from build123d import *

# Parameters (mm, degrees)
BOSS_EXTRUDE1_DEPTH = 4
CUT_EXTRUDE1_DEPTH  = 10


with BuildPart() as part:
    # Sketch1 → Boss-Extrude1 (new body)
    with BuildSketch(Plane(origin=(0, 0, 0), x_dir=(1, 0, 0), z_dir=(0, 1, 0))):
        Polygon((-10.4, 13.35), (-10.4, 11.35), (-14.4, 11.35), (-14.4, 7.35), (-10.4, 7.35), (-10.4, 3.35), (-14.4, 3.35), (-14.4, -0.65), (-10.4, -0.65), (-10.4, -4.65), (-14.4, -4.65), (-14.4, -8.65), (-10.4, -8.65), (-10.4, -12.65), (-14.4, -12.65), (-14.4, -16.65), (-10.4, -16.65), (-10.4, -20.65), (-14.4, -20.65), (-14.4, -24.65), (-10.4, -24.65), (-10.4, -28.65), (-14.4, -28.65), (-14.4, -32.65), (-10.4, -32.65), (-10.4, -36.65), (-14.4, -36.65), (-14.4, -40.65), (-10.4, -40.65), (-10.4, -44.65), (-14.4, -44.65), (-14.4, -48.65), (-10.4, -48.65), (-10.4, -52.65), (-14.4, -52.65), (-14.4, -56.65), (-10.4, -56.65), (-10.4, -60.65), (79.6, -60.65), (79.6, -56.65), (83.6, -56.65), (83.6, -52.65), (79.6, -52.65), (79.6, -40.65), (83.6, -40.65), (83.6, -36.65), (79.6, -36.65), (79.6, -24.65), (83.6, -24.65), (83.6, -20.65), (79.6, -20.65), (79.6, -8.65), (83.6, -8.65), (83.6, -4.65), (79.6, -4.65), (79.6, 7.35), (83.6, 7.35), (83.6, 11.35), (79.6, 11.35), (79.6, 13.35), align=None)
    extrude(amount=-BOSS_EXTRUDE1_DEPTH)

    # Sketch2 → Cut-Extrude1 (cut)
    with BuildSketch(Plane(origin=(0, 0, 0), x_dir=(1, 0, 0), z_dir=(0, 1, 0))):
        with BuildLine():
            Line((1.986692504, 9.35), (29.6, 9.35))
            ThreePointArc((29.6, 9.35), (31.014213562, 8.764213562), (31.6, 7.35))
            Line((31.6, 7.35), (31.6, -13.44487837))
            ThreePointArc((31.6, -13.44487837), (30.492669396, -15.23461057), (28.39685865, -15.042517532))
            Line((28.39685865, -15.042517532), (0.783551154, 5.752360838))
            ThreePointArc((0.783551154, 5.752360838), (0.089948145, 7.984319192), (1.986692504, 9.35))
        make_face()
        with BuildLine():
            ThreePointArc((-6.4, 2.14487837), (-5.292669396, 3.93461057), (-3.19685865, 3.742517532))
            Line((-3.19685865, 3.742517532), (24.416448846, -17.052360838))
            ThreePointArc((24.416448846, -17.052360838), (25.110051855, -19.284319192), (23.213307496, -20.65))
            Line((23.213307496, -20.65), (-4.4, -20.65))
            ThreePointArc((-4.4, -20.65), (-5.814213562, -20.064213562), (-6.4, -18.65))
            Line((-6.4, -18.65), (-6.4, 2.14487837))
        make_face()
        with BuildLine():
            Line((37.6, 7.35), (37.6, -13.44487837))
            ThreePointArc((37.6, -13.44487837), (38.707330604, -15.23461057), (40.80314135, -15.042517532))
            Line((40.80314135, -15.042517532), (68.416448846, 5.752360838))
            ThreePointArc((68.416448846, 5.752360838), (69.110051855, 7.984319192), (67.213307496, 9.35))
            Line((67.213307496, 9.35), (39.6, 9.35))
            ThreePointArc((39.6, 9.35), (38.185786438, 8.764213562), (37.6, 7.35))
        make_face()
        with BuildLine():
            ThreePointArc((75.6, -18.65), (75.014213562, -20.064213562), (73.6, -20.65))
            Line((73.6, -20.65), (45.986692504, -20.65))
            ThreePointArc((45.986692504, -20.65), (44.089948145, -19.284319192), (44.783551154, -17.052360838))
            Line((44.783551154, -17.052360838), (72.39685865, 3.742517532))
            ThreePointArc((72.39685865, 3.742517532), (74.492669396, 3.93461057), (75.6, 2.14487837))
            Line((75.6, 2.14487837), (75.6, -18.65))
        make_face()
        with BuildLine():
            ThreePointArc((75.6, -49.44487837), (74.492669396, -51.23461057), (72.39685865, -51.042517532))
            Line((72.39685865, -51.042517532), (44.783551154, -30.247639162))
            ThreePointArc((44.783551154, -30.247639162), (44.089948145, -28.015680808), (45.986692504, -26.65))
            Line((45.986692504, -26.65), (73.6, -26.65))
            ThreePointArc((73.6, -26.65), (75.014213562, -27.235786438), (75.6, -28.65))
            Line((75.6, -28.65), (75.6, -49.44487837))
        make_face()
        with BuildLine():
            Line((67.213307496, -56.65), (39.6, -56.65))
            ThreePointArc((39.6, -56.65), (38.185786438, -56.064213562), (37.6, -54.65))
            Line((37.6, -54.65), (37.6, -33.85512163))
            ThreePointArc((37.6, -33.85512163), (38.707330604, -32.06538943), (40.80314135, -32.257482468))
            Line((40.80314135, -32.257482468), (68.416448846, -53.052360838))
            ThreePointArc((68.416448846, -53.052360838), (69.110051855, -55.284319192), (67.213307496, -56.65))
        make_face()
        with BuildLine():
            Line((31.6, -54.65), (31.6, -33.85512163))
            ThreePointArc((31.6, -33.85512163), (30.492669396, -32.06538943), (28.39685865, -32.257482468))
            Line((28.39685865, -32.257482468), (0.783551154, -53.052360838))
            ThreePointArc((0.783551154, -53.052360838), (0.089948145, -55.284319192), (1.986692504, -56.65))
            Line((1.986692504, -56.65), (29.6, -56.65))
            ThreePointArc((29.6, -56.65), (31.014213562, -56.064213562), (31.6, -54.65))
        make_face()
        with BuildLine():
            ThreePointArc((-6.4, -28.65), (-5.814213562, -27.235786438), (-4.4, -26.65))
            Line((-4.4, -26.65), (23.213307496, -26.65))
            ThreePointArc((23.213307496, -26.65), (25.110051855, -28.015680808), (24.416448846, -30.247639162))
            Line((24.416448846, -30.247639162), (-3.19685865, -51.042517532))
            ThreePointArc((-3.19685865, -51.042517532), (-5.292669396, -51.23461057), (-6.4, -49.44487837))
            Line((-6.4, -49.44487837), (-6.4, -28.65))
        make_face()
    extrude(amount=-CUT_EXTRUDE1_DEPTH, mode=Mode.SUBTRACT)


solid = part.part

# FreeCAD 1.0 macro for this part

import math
import FreeCAD as App
import Part
import Sketcher

V = App.Vector
Q = App.Units.Quantity

doc = App.newDocument("Part")
body = doc.addObject("PartDesign::Body", "Body")

sketch1 = body.newObject("Sketcher::SketchObject", "Sketch")
sketch1.AttachmentSupport = (doc.getObject("XZ_Plane"), [""])
sketch1.MapMode = "FlatFace"
sketch1.addGeometry(Part.LineSegment(V(-10.4, -13.3, 0), V(-10.4, -11.3, 0)), False)
sketch1.addGeometry(Part.LineSegment(V(-10.4, -11.3, 0), V(-14.4, -11.3, 0)), False)
sketch1.addGeometry(Part.LineSegment(V(-14.4, -11.3, 0), V(-14.4, -7.3, 0)), False)
sketch1.addGeometry(Part.LineSegment(V(-14.4, -7.3, 0), V(-10.4, -7.3, 0)), False)
sketch1.addGeometry(Part.LineSegment(V(-10.4, -7.3, 0), V(-10.4, -3.4, 0)), False)
sketch1.addGeometry(Part.LineSegment(V(-10.4, -3.4, 0), V(-14.4, -3.4, 0)), False)
sketch1.addGeometry(Part.LineSegment(V(-14.4, -3.4, 0), V(-14.4, 0.7, 0)), False)
sketch1.addGeometry(Part.LineSegment(V(-14.4, 0.7, 0), V(-10.4, 0.7, 0)), False)
sketch1.addGeometry(Part.LineSegment(V(-10.4, 0.7, 0), V(-10.4, 4.7, 0)), False)
sketch1.addGeometry(Part.LineSegment(V(-10.4, 4.7, 0), V(-14.4, 4.7, 0)), False)
sketch1.addGeometry(Part.LineSegment(V(-14.4, 4.7, 0), V(-14.4, 8.7, 0)), False)
sketch1.addGeometry(Part.LineSegment(V(-14.4, 8.7, 0), V(-10.4, 8.7, 0)), False)
sketch1.addGeometry(Part.LineSegment(V(-10.4, 8.7, 0), V(-10.4, 12.7, 0)), False)
sketch1.addGeometry(Part.LineSegment(V(-10.4, 12.7, 0), V(-14.4, 12.7, 0)), False)
sketch1.addGeometry(Part.LineSegment(V(-14.4, 12.7, 0), V(-14.4, 16.6, 0)), False)
sketch1.addGeometry(Part.LineSegment(V(-14.4, 16.6, 0), V(-10.4, 16.6, 0)), False)
sketch1.addGeometry(Part.LineSegment(V(-10.4, 16.6, 0), V(-10.4, 20.6, 0)), False)
sketch1.addGeometry(Part.LineSegment(V(-10.4, 20.6, 0), V(-14.4, 20.6, 0)), False)
sketch1.addGeometry(Part.LineSegment(V(-14.4, 20.6, 0), V(-14.4, 24.6, 0)), False)
sketch1.addGeometry(Part.LineSegment(V(-14.4, 24.6, 0), V(-10.4, 24.6, 0)), False)
sketch1.addGeometry(Part.LineSegment(V(-10.4, 24.6, 0), V(-10.4, 28.6, 0)), False)
sketch1.addGeometry(Part.LineSegment(V(-10.4, 28.6, 0), V(-14.4, 28.6, 0)), False)
sketch1.addGeometry(Part.LineSegment(V(-14.4, 28.6, 0), V(-14.4, 32.6, 0)), False)
sketch1.addGeometry(Part.LineSegment(V(-14.4, 32.6, 0), V(-10.4, 32.6, 0)), False)
sketch1.addGeometry(Part.LineSegment(V(-10.4, 32.6, 0), V(-10.4, 36.6, 0)), False)
sketch1.addGeometry(Part.LineSegment(V(-10.4, 36.6, 0), V(-14.4, 36.6, 0)), False)
sketch1.addGeometry(Part.LineSegment(V(-14.4, 36.6, 0), V(-14.4, 40.6, 0)), False)
sketch1.addGeometry(Part.LineSegment(V(-14.4, 40.6, 0), V(-10.4, 40.6, 0)), False)
sketch1.addGeometry(Part.LineSegment(V(-10.4, 40.6, 0), V(-10.4, 44.6, 0)), False)
sketch1.addGeometry(Part.LineSegment(V(-10.4, 44.6, 0), V(-14.4, 44.6, 0)), False)
sketch1.addGeometry(Part.LineSegment(V(-14.4, 44.6, 0), V(-14.4, 48.6, 0)), False)
sketch1.addGeometry(Part.LineSegment(V(-14.4, 48.6, 0), V(-10.4, 48.6, 0)), False)
sketch1.addGeometry(Part.LineSegment(V(-10.4, 48.6, 0), V(-10.4, 52.6, 0)), False)
sketch1.addGeometry(Part.LineSegment(V(-10.4, 52.6, 0), V(-14.4, 52.6, 0)), False)
sketch1.addGeometry(Part.LineSegment(V(-14.4, 52.6, 0), V(-14.4, 56.6, 0)), False)
sketch1.addGeometry(Part.LineSegment(V(-14.4, 56.6, 0), V(-10.4, 56.6, 0)), False)
sketch1.addGeometry(Part.LineSegment(V(-10.4, 56.6, 0), V(-10.4, 60.6, 0)), False)
sketch1.addGeometry(Part.LineSegment(V(-10.4, 60.6, 0), V(79.6, 60.6, 0)), False)
sketch1.addGeometry(Part.LineSegment(V(79.6, 60.6, 0), V(79.6, 56.6, 0)), False)
sketch1.addGeometry(Part.LineSegment(V(79.6, 56.6, 0), V(83.6, 56.6, 0)), False)
sketch1.addGeometry(Part.LineSegment(V(83.6, 56.6, 0), V(83.6, 52.6, 0)), False)
sketch1.addGeometry(Part.LineSegment(V(83.6, 52.6, 0), V(79.6, 52.6, 0)), False)
sketch1.addGeometry(Part.LineSegment(V(79.6, 52.6, 0), V(79.6, 40.6, 0)), False)
sketch1.addGeometry(Part.LineSegment(V(79.6, 40.6, 0), V(83.6, 40.6, 0)), False)
sketch1.addGeometry(Part.LineSegment(V(83.6, 40.6, 0), V(83.6, 36.6, 0)), False)
sketch1.addGeometry(Part.LineSegment(V(83.6, 36.6, 0), V(79.6, 36.6, 0)), False)
sketch1.addGeometry(Part.LineSegment(V(79.6, 36.6, 0), V(79.6, 24.6, 0)), False)
sketch1.addGeometry(Part.LineSegment(V(79.6, 24.6, 0), V(83.6, 24.6, 0)), False)
sketch1.addGeometry(Part.LineSegment(V(83.6, 24.6, 0), V(83.6, 20.6, 0)), False)
sketch1.addGeometry(Part.LineSegment(V(83.6, 20.6, 0), V(79.6, 20.6, 0)), False)
sketch1.addGeometry(Part.LineSegment(V(79.6, 20.6, 0), V(79.6, 8.7, 0)), False)
sketch1.addGeometry(Part.LineSegment(V(79.6, 8.7, 0), V(83.6, 8.7, 0)), False)
sketch1.addGeometry(Part.LineSegment(V(83.6, 8.7, 0), V(83.6, 4.7, 0)), False)
sketch1.addGeometry(Part.LineSegment(V(83.6, 4.7, 0), V(79.6, 4.7, 0)), False)
sketch1.addGeometry(Part.LineSegment(V(79.6, 4.7, 0), V(79.6, -7.3, 0)), False)
sketch1.addGeometry(Part.LineSegment(V(79.6, -7.3, 0), V(83.6, -7.3, 0)), False)
sketch1.addGeometry(Part.LineSegment(V(83.6, -7.3, 0), V(83.6, -11.3, 0)), False)
sketch1.addGeometry(Part.LineSegment(V(83.6, -11.3, 0), V(79.6, -11.3, 0)), False)
sketch1.addGeometry(Part.LineSegment(V(79.6, -11.3, 0), V(79.6, -13.3, 0)), False)
sketch1.addGeometry(Part.LineSegment(V(79.6, -13.3, 0), V(-10.4, -13.3, 0)), False)
sketch1.addConstraint(Sketcher.Constraint("Coincident", 0, 2, 1, 1))
sketch1.addConstraint(Sketcher.Constraint("Coincident", 1, 2, 2, 1))
sketch1.addConstraint(Sketcher.Constraint("Coincident", 2, 2, 3, 1))
sketch1.addConstraint(Sketcher.Constraint("Coincident", 3, 2, 4, 1))
sketch1.addConstraint(Sketcher.Constraint("Coincident", 4, 2, 5, 1))
sketch1.addConstraint(Sketcher.Constraint("Coincident", 5, 2, 6, 1))
sketch1.addConstraint(Sketcher.Constraint("Coincident", 6, 2, 7, 1))
sketch1.addConstraint(Sketcher.Constraint("Coincident", 7, 2, 8, 1))
sketch1.addConstraint(Sketcher.Constraint("Coincident", 8, 2, 9, 1))
sketch1.addConstraint(Sketcher.Constraint("Coincident", 9, 2, 10, 1))
sketch1.addConstraint(Sketcher.Constraint("Coincident", 10, 2, 11, 1))
sketch1.addConstraint(Sketcher.Constraint("Coincident", 11, 2, 12, 1))
sketch1.addConstraint(Sketcher.Constraint("Coincident", 12, 2, 13, 1))
sketch1.addConstraint(Sketcher.Constraint("Coincident", 13, 2, 14, 1))
sketch1.addConstraint(Sketcher.Constraint("Coincident", 14, 2, 15, 1))
sketch1.addConstraint(Sketcher.Constraint("Coincident", 15, 2, 16, 1))
sketch1.addConstraint(Sketcher.Constraint("Coincident", 16, 2, 17, 1))
sketch1.addConstraint(Sketcher.Constraint("Coincident", 17, 2, 18, 1))
sketch1.addConstraint(Sketcher.Constraint("Coincident", 18, 2, 19, 1))
sketch1.addConstraint(Sketcher.Constraint("Coincident", 19, 2, 20, 1))
sketch1.addConstraint(Sketcher.Constraint("Coincident", 20, 2, 21, 1))
sketch1.addConstraint(Sketcher.Constraint("Coincident", 21, 2, 22, 1))
sketch1.addConstraint(Sketcher.Constraint("Coincident", 22, 2, 23, 1))
sketch1.addConstraint(Sketcher.Constraint("Coincident", 23, 2, 24, 1))
sketch1.addConstraint(Sketcher.Constraint("Coincident", 24, 2, 25, 1))
sketch1.addConstraint(Sketcher.Constraint("Coincident", 25, 2, 26, 1))
sketch1.addConstraint(Sketcher.Constraint("Coincident", 26, 2, 27, 1))
sketch1.addConstraint(Sketcher.Constraint("Coincident", 27, 2, 28, 1))
sketch1.addConstraint(Sketcher.Constraint("Coincident", 28, 2, 29, 1))
sketch1.addConstraint(Sketcher.Constraint("Coincident", 29, 2, 30, 1))
sketch1.addConstraint(Sketcher.Constraint("Coincident", 30, 2, 31, 1))
sketch1.addConstraint(Sketcher.Constraint("Coincident", 31, 2, 32, 1))
sketch1.addConstraint(Sketcher.Constraint("Coincident", 32, 2, 33, 1))
sketch1.addConstraint(Sketcher.Constraint("Coincident", 33, 2, 34, 1))
sketch1.addConstraint(Sketcher.Constraint("Coincident", 34, 2, 35, 1))
sketch1.addConstraint(Sketcher.Constraint("Coincident", 35, 2, 36, 1))
sketch1.addConstraint(Sketcher.Constraint("Coincident", 36, 2, 37, 1))
sketch1.addConstraint(Sketcher.Constraint("Coincident", 37, 2, 38, 1))
sketch1.addConstraint(Sketcher.Constraint("Coincident", 38, 2, 39, 1))
sketch1.addConstraint(Sketcher.Constraint("Coincident", 39, 2, 40, 1))
sketch1.addConstraint(Sketcher.Constraint("Coincident", 40, 2, 41, 1))
sketch1.addConstraint(Sketcher.Constraint("Coincident", 41, 2, 42, 1))
sketch1.addConstraint(Sketcher.Constraint("Coincident", 42, 2, 43, 1))
sketch1.addConstraint(Sketcher.Constraint("Coincident", 43, 2, 44, 1))
sketch1.addConstraint(Sketcher.Constraint("Coincident", 44, 2, 45, 1))
sketch1.addConstraint(Sketcher.Constraint("Coincident", 45, 2, 46, 1))
sketch1.addConstraint(Sketcher.Constraint("Coincident", 46, 2, 47, 1))
sketch1.addConstraint(Sketcher.Constraint("Coincident", 47, 2, 48, 1))
sketch1.addConstraint(Sketcher.Constraint("Coincident", 48, 2, 49, 1))
sketch1.addConstraint(Sketcher.Constraint("Coincident", 49, 2, 50, 1))
sketch1.addConstraint(Sketcher.Constraint("Coincident", 50, 2, 51, 1))
sketch1.addConstraint(Sketcher.Constraint("Coincident", 51, 2, 52, 1))
sketch1.addConstraint(Sketcher.Constraint("Coincident", 52, 2, 53, 1))
sketch1.addConstraint(Sketcher.Constraint("Coincident", 53, 2, 54, 1))
sketch1.addConstraint(Sketcher.Constraint("Coincident", 54, 2, 55, 1))
sketch1.addConstraint(Sketcher.Constraint("Coincident", 55, 2, 56, 1))
sketch1.addConstraint(Sketcher.Constraint("Coincident", 56, 2, 57, 1))
sketch1.addConstraint(Sketcher.Constraint("Coincident", 57, 2, 58, 1))
sketch1.addConstraint(Sketcher.Constraint("Coincident", 58, 2, 59, 1))
sketch1.addConstraint(Sketcher.Constraint("Coincident", 59, 2, 0, 1))
sketch1.addConstraint(Sketcher.Constraint("Vertical", 0))
sketch1.addConstraint(Sketcher.Constraint("Horizontal", 1))
sketch1.addConstraint(Sketcher.Constraint("Vertical", 2))
sketch1.addConstraint(Sketcher.Constraint("Horizontal", 3))
sketch1.addConstraint(Sketcher.Constraint("Vertical", 4))
sketch1.addConstraint(Sketcher.Constraint("Horizontal", 5))
sketch1.addConstraint(Sketcher.Constraint("Vertical", 6))
sketch1.addConstraint(Sketcher.Constraint("Horizontal", 7))
sketch1.addConstraint(Sketcher.Constraint("Vertical", 8))
sketch1.addConstraint(Sketcher.Constraint("Horizontal", 9))
sketch1.addConstraint(Sketcher.Constraint("Vertical", 10))
sketch1.addConstraint(Sketcher.Constraint("Horizontal", 11))
sketch1.addConstraint(Sketcher.Constraint("Vertical", 12))
sketch1.addConstraint(Sketcher.Constraint("Horizontal", 13))
sketch1.addConstraint(Sketcher.Constraint("Vertical", 14))
sketch1.addConstraint(Sketcher.Constraint("Horizontal", 15))
sketch1.addConstraint(Sketcher.Constraint("Vertical", 16))
sketch1.addConstraint(Sketcher.Constraint("Horizontal", 17))
sketch1.addConstraint(Sketcher.Constraint("Vertical", 18))
sketch1.addConstraint(Sketcher.Constraint("Horizontal", 19))
sketch1.addConstraint(Sketcher.Constraint("Vertical", 20))
sketch1.addConstraint(Sketcher.Constraint("Horizontal", 21))
sketch1.addConstraint(Sketcher.Constraint("Vertical", 22))
sketch1.addConstraint(Sketcher.Constraint("Horizontal", 23))
sketch1.addConstraint(Sketcher.Constraint("Vertical", 24))
sketch1.addConstraint(Sketcher.Constraint("Horizontal", 25))
sketch1.addConstraint(Sketcher.Constraint("Vertical", 26))
sketch1.addConstraint(Sketcher.Constraint("Horizontal", 27))
sketch1.addConstraint(Sketcher.Constraint("Vertical", 28))
sketch1.addConstraint(Sketcher.Constraint("Horizontal", 29))
sketch1.addConstraint(Sketcher.Constraint("Vertical", 30))
sketch1.addConstraint(Sketcher.Constraint("Horizontal", 31))
sketch1.addConstraint(Sketcher.Constraint("Vertical", 32))
sketch1.addConstraint(Sketcher.Constraint("Horizontal", 33))
sketch1.addConstraint(Sketcher.Constraint("Vertical", 34))
sketch1.addConstraint(Sketcher.Constraint("Horizontal", 35))
sketch1.addConstraint(Sketcher.Constraint("Vertical", 36))
sketch1.addConstraint(Sketcher.Constraint("Horizontal", 37))
sketch1.addConstraint(Sketcher.Constraint("Vertical", 38))
sketch1.addConstraint(Sketcher.Constraint("Horizontal", 39))
sketch1.addConstraint(Sketcher.Constraint("Vertical", 40))
sketch1.addConstraint(Sketcher.Constraint("Horizontal", 41))
sketch1.addConstraint(Sketcher.Constraint("Vertical", 42))
sketch1.addConstraint(Sketcher.Constraint("Horizontal", 43))
sketch1.addConstraint(Sketcher.Constraint("Vertical", 44))
sketch1.addConstraint(Sketcher.Constraint("Horizontal", 45))
sketch1.addConstraint(Sketcher.Constraint("Vertical", 46))
sketch1.addConstraint(Sketcher.Constraint("Horizontal", 47))
sketch1.addConstraint(Sketcher.Constraint("Vertical", 48))
sketch1.addConstraint(Sketcher.Constraint("Horizontal", 49))
sketch1.addConstraint(Sketcher.Constraint("Vertical", 50))
sketch1.addConstraint(Sketcher.Constraint("Horizontal", 51))
sketch1.addConstraint(Sketcher.Constraint("Vertical", 52))
sketch1.addConstraint(Sketcher.Constraint("Horizontal", 53))
sketch1.addConstraint(Sketcher.Constraint("Vertical", 54))
sketch1.addConstraint(Sketcher.Constraint("Horizontal", 55))
sketch1.addConstraint(Sketcher.Constraint("Vertical", 56))
sketch1.addConstraint(Sketcher.Constraint("Horizontal", 57))
sketch1.addConstraint(Sketcher.Constraint("Vertical", 58))
sketch1.addConstraint(Sketcher.Constraint("Horizontal", 59))
sketch1.addConstraint(Sketcher.Constraint("Horizontal", 35, 2, 38, 2))
sketch1.addConstraint(Sketcher.Constraint("Horizontal", 33, 2, 40, 2))
sketch1.addConstraint(Sketcher.Constraint("Horizontal", 27, 2, 42, 2))
sketch1.addConstraint(Sketcher.Constraint("Horizontal", 25, 2, 44, 2))
sketch1.addConstraint(Sketcher.Constraint("Horizontal", 19, 2, 46, 2))
sketch1.addConstraint(Sketcher.Constraint("Horizontal", 17, 2, 48, 2))
sketch1.addConstraint(Sketcher.Constraint("Horizontal", 11, 2, 50, 2))
sketch1.addConstraint(Sketcher.Constraint("Horizontal", 9, 2, 52, 2))
sketch1.addConstraint(Sketcher.Constraint("Horizontal", 3, 2, 54, 2))
sketch1.addConstraint(Sketcher.Constraint("Horizontal", 1, 2, 56, 2))
sketch1.addConstraint(Sketcher.Constraint("Vertical", 0, 2, 3, 2))
sketch1.addConstraint(Sketcher.Constraint("Vertical", 2, 2, 5, 2))
sketch1.addConstraint(Sketcher.Constraint("Vertical", 4, 2, 7, 2))
sketch1.addConstraint(Sketcher.Constraint("Vertical", 6, 2, 9, 2))
sketch1.addConstraint(Sketcher.Constraint("Vertical", 8, 2, 11, 2))
sketch1.addConstraint(Sketcher.Constraint("Vertical", 10, 2, 13, 2))
sketch1.addConstraint(Sketcher.Constraint("Vertical", 12, 2, 15, 2))
sketch1.addConstraint(Sketcher.Constraint("Vertical", 14, 2, 17, 2))
sketch1.addConstraint(Sketcher.Constraint("Vertical", 16, 2, 19, 2))
sketch1.addConstraint(Sketcher.Constraint("Vertical", 18, 2, 21, 2))
sketch1.addConstraint(Sketcher.Constraint("Vertical", 20, 2, 23, 2))
sketch1.addConstraint(Sketcher.Constraint("Vertical", 22, 2, 25, 2))
sketch1.addConstraint(Sketcher.Constraint("Vertical", 24, 2, 27, 2))
sketch1.addConstraint(Sketcher.Constraint("Vertical", 26, 2, 29, 2))
sketch1.addConstraint(Sketcher.Constraint("Vertical", 28, 2, 31, 2))
sketch1.addConstraint(Sketcher.Constraint("Vertical", 30, 2, 33, 2))
sketch1.addConstraint(Sketcher.Constraint("Vertical", 32, 2, 35, 2))
sketch1.addConstraint(Sketcher.Constraint("Vertical", 38, 2, 41, 2))
sketch1.addConstraint(Sketcher.Constraint("Vertical", 40, 2, 43, 2))
sketch1.addConstraint(Sketcher.Constraint("Vertical", 42, 2, 45, 2))
sketch1.addConstraint(Sketcher.Constraint("Vertical", 44, 2, 47, 2))
sketch1.addConstraint(Sketcher.Constraint("Vertical", 46, 2, 49, 2))
sketch1.addConstraint(Sketcher.Constraint("Vertical", 48, 2, 51, 2))
sketch1.addConstraint(Sketcher.Constraint("Vertical", 50, 2, 53, 2))
sketch1.addConstraint(Sketcher.Constraint("Vertical", 52, 2, 55, 2))
sketch1.addConstraint(Sketcher.Constraint("Vertical", 54, 2, 57, 2))
sketch1.addConstraint(Sketcher.Constraint("Equal", 35, 39))
sketch1.addConstraint(Sketcher.Constraint("Equal", 57, 2))
sketch1.addConstraint(Sketcher.Constraint("Equal", 2, 4))
sketch1.addConstraint(Sketcher.Constraint("Equal", 4, 6))
sketch1.addConstraint(Sketcher.Constraint("Equal", 6, 8))
sketch1.addConstraint(Sketcher.Constraint("Equal", 8, 10))
sketch1.addConstraint(Sketcher.Constraint("Equal", 10, 12))
sketch1.addConstraint(Sketcher.Constraint("Equal", 12, 14))
sketch1.addConstraint(Sketcher.Constraint("Equal", 14, 16))
sketch1.addConstraint(Sketcher.Constraint("Equal", 16, 18))
sketch1.addConstraint(Sketcher.Constraint("Equal", 18, 20))
sketch1.addConstraint(Sketcher.Constraint("Equal", 20, 22))
sketch1.addConstraint(Sketcher.Constraint("Equal", 22, 24))
sketch1.addConstraint(Sketcher.Constraint("Equal", 24, 26))
sketch1.addConstraint(Sketcher.Constraint("Equal", 26, 28))
sketch1.addConstraint(Sketcher.Constraint("Equal", 28, 30))
sketch1.addConstraint(Sketcher.Constraint("Equal", 30, 32))
sketch1.addConstraint(Sketcher.Constraint("Equal", 32, 34))
sketch1.addConstraint(Sketcher.Constraint("Equal", 34, 36))
sketch1.addConstraint(Sketcher.Constraint("DistanceX", 1, 2, 1, 1, Q("4 mm")))
sketch1.addConstraint(Sketcher.Constraint("DistanceX", 37, 1, 37, 2, Q("90 mm")))
sketch1.addConstraint(Sketcher.Constraint("DistanceY", 0, 1, 0, 2, Q("2 mm")))
sketch1.addConstraint(Sketcher.Constraint("DistanceX", 0, 2, -1, 1, Q("10.4 mm")))
sketch1.addConstraint(Sketcher.Constraint("DistanceY", 0, 2, -1, 1, Q("11.35 mm")))
pad1 = body.newObject("PartDesign::Pad", "Pad")
pad1.Profile = sketch1
pad1.Length = 4

sketch2 = body.newObject("Sketcher::SketchObject", "Sketch001")
sketch2.AttachmentSupport = (doc.getObject("XZ_Plane"), [""])
sketch2.MapMode = "FlatFace"
sketch2.addGeometry(Part.LineSegment(V(29.6, -9.3, 0), V(2, -9.3, 0)), False)
sketch2.addGeometry(Part.ArcOfCircle(Part.Circle(V(2, -7.3, 0), V(0, 0, 1), 2), math.radians(127), math.radians(270)), False)
sketch2.addGeometry(Part.LineSegment(V(0.8, -5.8, 0), V(28.4, 15, 0)), False)
sketch2.addGeometry(Part.ArcOfCircle(Part.Circle(V(29.6, 13.4, 0), V(0, 0, 1), 2), math.radians(0), math.radians(127)), False)
sketch2.addGeometry(Part.LineSegment(V(31.6, 13.4, 0), V(31.6, -7.3, 0)), False)
sketch2.addGeometry(Part.ArcOfCircle(Part.Circle(V(29.6, -7.3, 0), V(0, 0, 1), 2), math.radians(-90), math.radians(0)), False)
sketch2.addGeometry(Part.ArcOfCircle(Part.Circle(V(-4.4, -2.1, 0), V(0, 0, 1), 2), math.radians(-180), math.radians(-53)), False)
sketch2.addGeometry(Part.LineSegment(V(-6.4, -2.1, 0), V(-6.4, 18.6, 0)), False)
sketch2.addGeometry(Part.ArcOfCircle(Part.Circle(V(-4.4, 18.6, 0), V(0, 0, 1), 2), math.radians(90), math.radians(180)), False)
sketch2.addGeometry(Part.LineSegment(V(-4.4, 20.6, 0), V(23.2, 20.6, 0)), False)
sketch2.addGeometry(Part.ArcOfCircle(Part.Circle(V(23.2, 18.6, 0), V(0, 0, 1), 2), math.radians(-53), math.radians(90)), False)
sketch2.addGeometry(Part.LineSegment(V(24.4, 17.1, 0), V(-3.2, -3.7, 0)), False)
sketch2.addGeometry(Part.LineSegment(V(37.6, -7.3, 0), V(37.6, 13.4, 0)), False)
sketch2.addGeometry(Part.ArcOfCircle(Part.Circle(V(39.6, 13.4, 0), V(0, 0, 1), 2), math.radians(53), math.radians(180)), False)
sketch2.addGeometry(Part.LineSegment(V(40.8, 15, 0), V(68.4, -5.8, 0)), False)
sketch2.addGeometry(Part.ArcOfCircle(Part.Circle(V(67.2, -7.3, 0), V(0, 0, 1), 2), math.radians(-90), math.radians(53)), False)
sketch2.addGeometry(Part.LineSegment(V(67.2, -9.3, 0), V(39.6, -9.3, 0)), False)
sketch2.addGeometry(Part.ArcOfCircle(Part.Circle(V(39.6, -7.3, 0), V(0, 0, 1), 2), math.radians(-180), math.radians(-90)), False)
sketch2.addGeometry(Part.ArcOfCircle(Part.Circle(V(73.6, 18.6, 0), V(0, 0, 1), 2), math.radians(0), math.radians(90)), False)
sketch2.addGeometry(Part.LineSegment(V(75.6, 18.6, 0), V(75.6, -2.1, 0)), False)
sketch2.addGeometry(Part.ArcOfCircle(Part.Circle(V(73.6, -2.1, 0), V(0, 0, 1), 2), math.radians(-127), math.radians(0)), False)
sketch2.addGeometry(Part.LineSegment(V(72.4, -3.7, 0), V(44.8, 17.1, 0)), False)
sketch2.addGeometry(Part.ArcOfCircle(Part.Circle(V(46, 18.6, 0), V(0, 0, 1), 2), math.radians(90), math.radians(233)), False)
sketch2.addGeometry(Part.LineSegment(V(46, 20.6, 0), V(73.6, 20.6, 0)), False)
sketch2.addGeometry(Part.ArcOfCircle(Part.Circle(V(73.6, 49.4, 0), V(0, 0, 1), 2), math.radians(0), math.radians(127)), False)
sketch2.addGeometry(Part.LineSegment(V(75.6, 49.4, 0), V(75.6, 28.6, 0)), False)
sketch2.addGeometry(Part.ArcOfCircle(Part.Circle(V(73.6, 28.7, 0), V(0, 0, 1), 2), math.radians(-90), math.radians(0)), False)
sketch2.addGeometry(Part.LineSegment(V(73.6, 26.6, 0), V(46, 26.6, 0)), False)
sketch2.addGeometry(Part.ArcOfCircle(Part.Circle(V(46, 28.6, 0), V(0, 0, 1), 2), math.radians(127), math.radians(270)), False)
sketch2.addGeometry(Part.LineSegment(V(44.8, 30.2, 0), V(72.4, 51, 0)), False)
sketch2.addGeometry(Part.LineSegment(V(39.6, 56.6, 0), V(67.2, 56.6, 0)), False)
sketch2.addGeometry(Part.ArcOfCircle(Part.Circle(V(67.2, 54.6, 0), V(0, 0, 1), 2), math.radians(-53), math.radians(90)), False)
sketch2.addGeometry(Part.LineSegment(V(68.4, 53.1, 0), V(40.8, 32.3, 0)), False)
sketch2.addGeometry(Part.ArcOfCircle(Part.Circle(V(39.6, 33.9, 0), V(0, 0, 1), 2), math.radians(-180), math.radians(-53)), False)
sketch2.addGeometry(Part.LineSegment(V(37.6, 33.9, 0), V(37.6, 54.6, 0)), False)
sketch2.addGeometry(Part.ArcOfCircle(Part.Circle(V(39.6, 54.6, 0), V(0, 0, 1), 2), math.radians(90), math.radians(180)), False)
sketch2.addGeometry(Part.LineSegment(V(31.6, 54.6, 0), V(31.6, 33.9, 0)), False)
sketch2.addGeometry(Part.ArcOfCircle(Part.Circle(V(29.6, 33.9, 0), V(0, 0, 1), 2), math.radians(-127), math.radians(0)), False)
sketch2.addGeometry(Part.LineSegment(V(28.4, 32.3, 0), V(0.8, 53.1, 0)), False)
sketch2.addGeometry(Part.ArcOfCircle(Part.Circle(V(2, 54.6, 0), V(0, 0, 1), 2), math.radians(90), math.radians(233)), False)
sketch2.addGeometry(Part.LineSegment(V(2, 56.6, 0), V(29.6, 56.6, 0)), False)
sketch2.addGeometry(Part.ArcOfCircle(Part.Circle(V(29.6, 54.6, 0), V(0, 0, 1), 2), math.radians(0), math.radians(90)), False)
sketch2.addGeometry(Part.ArcOfCircle(Part.Circle(V(-4.4, 28.7, 0), V(0, 0, 1), 2), math.radians(-180), math.radians(-90)), False)
sketch2.addGeometry(Part.LineSegment(V(-6.4, 28.6, 0), V(-6.4, 49.4, 0)), False)
sketch2.addGeometry(Part.ArcOfCircle(Part.Circle(V(-4.4, 49.4, 0), V(0, 0, 1), 2), math.radians(53), math.radians(180)), False)
sketch2.addGeometry(Part.LineSegment(V(-3.2, 51, 0), V(24.4, 30.2, 0)), False)
sketch2.addGeometry(Part.ArcOfCircle(Part.Circle(V(23.2, 28.6, 0), V(0, 0, 1), 2), math.radians(-90), math.radians(53)), False)
sketch2.addGeometry(Part.LineSegment(V(23.2, 26.6, 0), V(-4.4, 26.6, 0)), False)
sketch2.addConstraint(Sketcher.Constraint("Tangent", 0, 2, 1, 2))
sketch2.addConstraint(Sketcher.Constraint("Tangent", 1, 1, 2, 1))
sketch2.addConstraint(Sketcher.Constraint("Tangent", 2, 2, 3, 2))
sketch2.addConstraint(Sketcher.Constraint("Tangent", 3, 1, 4, 1))
sketch2.addConstraint(Sketcher.Constraint("Tangent", 4, 2, 5, 2))
sketch2.addConstraint(Sketcher.Constraint("Tangent", 5, 1, 0, 1))
sketch2.addConstraint(Sketcher.Constraint("Tangent", 6, 1, 7, 1))
sketch2.addConstraint(Sketcher.Constraint("Tangent", 7, 2, 8, 2))
sketch2.addConstraint(Sketcher.Constraint("Tangent", 8, 1, 9, 1))
sketch2.addConstraint(Sketcher.Constraint("Tangent", 9, 2, 10, 2))
sketch2.addConstraint(Sketcher.Constraint("Tangent", 10, 1, 11, 1))
sketch2.addConstraint(Sketcher.Constraint("Tangent", 11, 2, 6, 2))
sketch2.addConstraint(Sketcher.Constraint("Tangent", 12, 2, 13, 2))
sketch2.addConstraint(Sketcher.Constraint("Tangent", 13, 1, 14, 1))
sketch2.addConstraint(Sketcher.Constraint("Tangent", 14, 2, 15, 2))
sketch2.addConstraint(Sketcher.Constraint("Tangent", 15, 1, 16, 1))
sketch2.addConstraint(Sketcher.Constraint("Tangent", 16, 2, 17, 2))
sketch2.addConstraint(Sketcher.Constraint("Tangent", 17, 1, 12, 1))
sketch2.addConstraint(Sketcher.Constraint("Tangent", 18, 1, 19, 1))
sketch2.addConstraint(Sketcher.Constraint("Tangent", 19, 2, 20, 2))
sketch2.addConstraint(Sketcher.Constraint("Tangent", 20, 1, 21, 1))
sketch2.addConstraint(Sketcher.Constraint("Tangent", 21, 2, 22, 2))
sketch2.addConstraint(Sketcher.Constraint("Tangent", 22, 1, 23, 1))
sketch2.addConstraint(Sketcher.Constraint("Tangent", 23, 2, 18, 2))
sketch2.addConstraint(Sketcher.Constraint("Tangent", 24, 1, 25, 1))
sketch2.addConstraint(Sketcher.Constraint("Tangent", 25, 2, 26, 2))
sketch2.addConstraint(Sketcher.Constraint("Tangent", 26, 1, 27, 1))
sketch2.addConstraint(Sketcher.Constraint("Tangent", 27, 2, 28, 2))
sketch2.addConstraint(Sketcher.Constraint("Tangent", 28, 1, 29, 1))
sketch2.addConstraint(Sketcher.Constraint("Tangent", 29, 2, 24, 2))
sketch2.addConstraint(Sketcher.Constraint("Tangent", 30, 2, 31, 2))
sketch2.addConstraint(Sketcher.Constraint("Tangent", 31, 1, 32, 1))
sketch2.addConstraint(Sketcher.Constraint("Tangent", 32, 2, 33, 2))
sketch2.addConstraint(Sketcher.Constraint("Tangent", 33, 1, 34, 1))
sketch2.addConstraint(Sketcher.Constraint("Tangent", 34, 2, 35, 2))
sketch2.addConstraint(Sketcher.Constraint("Tangent", 35, 1, 30, 1))
sketch2.addConstraint(Sketcher.Constraint("Tangent", 36, 2, 37, 2))
sketch2.addConstraint(Sketcher.Constraint("Tangent", 37, 1, 38, 1))
sketch2.addConstraint(Sketcher.Constraint("Tangent", 38, 2, 39, 2))
sketch2.addConstraint(Sketcher.Constraint("Tangent", 39, 1, 40, 1))
sketch2.addConstraint(Sketcher.Constraint("Tangent", 40, 2, 41, 2))
sketch2.addConstraint(Sketcher.Constraint("Tangent", 41, 1, 36, 1))
sketch2.addConstraint(Sketcher.Constraint("Tangent", 42, 1, 43, 1))
sketch2.addConstraint(Sketcher.Constraint("Tangent", 43, 2, 44, 2))
sketch2.addConstraint(Sketcher.Constraint("Tangent", 44, 1, 45, 1))
sketch2.addConstraint(Sketcher.Constraint("Tangent", 45, 2, 46, 2))
sketch2.addConstraint(Sketcher.Constraint("Tangent", 46, 1, 47, 1))
sketch2.addConstraint(Sketcher.Constraint("Tangent", 47, 2, 42, 2))
sketch2.addConstraint(Sketcher.Constraint("Horizontal", 0))
sketch2.addConstraint(Sketcher.Constraint("Vertical", 4))
sketch2.addConstraint(Sketcher.Constraint("Vertical", 7))
sketch2.addConstraint(Sketcher.Constraint("Horizontal", 9))
sketch2.addConstraint(Sketcher.Constraint("Vertical", 12))
sketch2.addConstraint(Sketcher.Constraint("Horizontal", 16))
sketch2.addConstraint(Sketcher.Constraint("Vertical", 19))
sketch2.addConstraint(Sketcher.Constraint("Horizontal", 23))
sketch2.addConstraint(Sketcher.Constraint("Vertical", 25))
sketch2.addConstraint(Sketcher.Constraint("Horizontal", 27))
sketch2.addConstraint(Sketcher.Constraint("Horizontal", 30))
sketch2.addConstraint(Sketcher.Constraint("Vertical", 34))
sketch2.addConstraint(Sketcher.Constraint("Vertical", 36))
sketch2.addConstraint(Sketcher.Constraint("Horizontal", 40))
sketch2.addConstraint(Sketcher.Constraint("Vertical", 43))
sketch2.addConstraint(Sketcher.Constraint("Horizontal", 47))
sketch2.addConstraint(Sketcher.Constraint("Equal", 1, 3))
sketch2.addConstraint(Sketcher.Constraint("Equal", 3, 5))
sketch2.addConstraint(Sketcher.Constraint("Equal", 5, 6))
sketch2.addConstraint(Sketcher.Constraint("Equal", 6, 8))
sketch2.addConstraint(Sketcher.Constraint("Equal", 8, 10))
sketch2.addConstraint(Sketcher.Constraint("Equal", 10, 13))
sketch2.addConstraint(Sketcher.Constraint("Equal", 13, 15))
sketch2.addConstraint(Sketcher.Constraint("Equal", 15, 17))
sketch2.addConstraint(Sketcher.Constraint("Equal", 17, 18))
sketch2.addConstraint(Sketcher.Constraint("Equal", 18, 20))
sketch2.addConstraint(Sketcher.Constraint("Equal", 20, 22))
sketch2.addConstraint(Sketcher.Constraint("Equal", 22, 24))
sketch2.addConstraint(Sketcher.Constraint("Equal", 24, 26))
sketch2.addConstraint(Sketcher.Constraint("Equal", 26, 28))
sketch2.addConstraint(Sketcher.Constraint("Equal", 28, 31))
sketch2.addConstraint(Sketcher.Constraint("Equal", 31, 33))
sketch2.addConstraint(Sketcher.Constraint("Equal", 33, 35))
sketch2.addConstraint(Sketcher.Constraint("Equal", 35, 37))
sketch2.addConstraint(Sketcher.Constraint("Equal", 37, 39))
sketch2.addConstraint(Sketcher.Constraint("Equal", 39, 41))
sketch2.addConstraint(Sketcher.Constraint("Equal", 41, 42))
sketch2.addConstraint(Sketcher.Constraint("Equal", 42, 44))
sketch2.addConstraint(Sketcher.Constraint("Equal", 44, 46))
sketch2.addConstraint(Sketcher.Constraint("Parallel", 2, 11))
sketch2.addConstraint(Sketcher.Constraint("Parallel", 14, 21))
sketch2.addConstraint(Sketcher.Constraint("Parallel", 11, 29))
sketch2.addConstraint(Sketcher.Constraint("Parallel", 29, 32))
sketch2.addConstraint(Sketcher.Constraint("Parallel", 21, 38))
sketch2.addConstraint(Sketcher.Constraint("Parallel", 38, 45))
sketch2.addConstraint(Sketcher.Constraint("Horizontal", 3, 3, 13, 3))
sketch2.addConstraint(Sketcher.Constraint("Horizontal", 5, 3, 15, 3))
sketch2.addConstraint(Sketcher.Constraint("Horizontal", 10, 3, 18, 3))
sketch2.addConstraint(Sketcher.Constraint("Horizontal", 6, 3, 20, 3))
sketch2.addConstraint(Sketcher.Constraint("Horizontal", 33, 3, 37, 3))
sketch2.addConstraint(Sketcher.Constraint("Horizontal", 35, 3, 39, 3))
sketch2.addConstraint(Sketcher.Constraint("Horizontal", 28, 3, 42, 3))
sketch2.addConstraint(Sketcher.Constraint("Horizontal", 24, 3, 44, 3))
sketch2.addConstraint(Sketcher.Constraint("Horizontal", 2, 2, 13, 1))
sketch2.addConstraint(Sketcher.Constraint("Vertical", 20, 3, 24, 3))
sketch2.addConstraint(Sketcher.Constraint("Vertical", 22, 3, 28, 3))
sketch2.addConstraint(Sketcher.Constraint("Vertical", 15, 3, 31, 3))
sketch2.addConstraint(Sketcher.Constraint("Vertical", 17, 3, 33, 3))
sketch2.addConstraint(Sketcher.Constraint("Vertical", 5, 3, 37, 3))
sketch2.addConstraint(Sketcher.Constraint("Vertical", 8, 3, 42, 3))
sketch2.addConstraint(Sketcher.Constraint("Equal", 0, 9))
sketch2.addConstraint(Sketcher.Constraint("Radius", 1, Q("2 mm")))
sketch2.addConstraint(Sketcher.Constraint("DistanceX", -1, 1, 3, 3, Q("29.6 mm")))
sketch2.addConstraint(Sketcher.Constraint("DistanceX", 6, 3, -1, 1, Q("4.4 mm")))
sketch2.addConstraint(Sketcher.Constraint("DistanceX", -1, 1, 13, 3, Q("39.6 mm")))
sketch2.addConstraint(Sketcher.Constraint("DistanceX", -1, 1, 18, 3, Q("73.6 mm")))
sketch2.addConstraint(Sketcher.Constraint("DistanceY", 1, 3, -1, 1, Q("7.35 mm")))
sketch2.addConstraint(Sketcher.Constraint("DistanceY", -1, 1, 8, 3, Q("18.65 mm")))
sketch2.addConstraint(Sketcher.Constraint("DistanceY", -1, 1, 26, 3, Q("28.65 mm")))
sketch2.addConstraint(Sketcher.Constraint("DistanceY", -1, 1, 31, 3, Q("54.65 mm")))
sketch2.addConstraint(Sketcher.Constraint("DistanceY", 4, 2, 4, 1, Q("20.794878 mm")))
sketch2.addConstraint(Sketcher.Constraint("Distance", 2, Q("34.56764 mm")))
pocket1 = body.newObject("PartDesign::Pocket", "Pocket")
pocket1.Profile = sketch2
pocket1.Length = 10
pocket1.Reversed = True

doc.recompute()
